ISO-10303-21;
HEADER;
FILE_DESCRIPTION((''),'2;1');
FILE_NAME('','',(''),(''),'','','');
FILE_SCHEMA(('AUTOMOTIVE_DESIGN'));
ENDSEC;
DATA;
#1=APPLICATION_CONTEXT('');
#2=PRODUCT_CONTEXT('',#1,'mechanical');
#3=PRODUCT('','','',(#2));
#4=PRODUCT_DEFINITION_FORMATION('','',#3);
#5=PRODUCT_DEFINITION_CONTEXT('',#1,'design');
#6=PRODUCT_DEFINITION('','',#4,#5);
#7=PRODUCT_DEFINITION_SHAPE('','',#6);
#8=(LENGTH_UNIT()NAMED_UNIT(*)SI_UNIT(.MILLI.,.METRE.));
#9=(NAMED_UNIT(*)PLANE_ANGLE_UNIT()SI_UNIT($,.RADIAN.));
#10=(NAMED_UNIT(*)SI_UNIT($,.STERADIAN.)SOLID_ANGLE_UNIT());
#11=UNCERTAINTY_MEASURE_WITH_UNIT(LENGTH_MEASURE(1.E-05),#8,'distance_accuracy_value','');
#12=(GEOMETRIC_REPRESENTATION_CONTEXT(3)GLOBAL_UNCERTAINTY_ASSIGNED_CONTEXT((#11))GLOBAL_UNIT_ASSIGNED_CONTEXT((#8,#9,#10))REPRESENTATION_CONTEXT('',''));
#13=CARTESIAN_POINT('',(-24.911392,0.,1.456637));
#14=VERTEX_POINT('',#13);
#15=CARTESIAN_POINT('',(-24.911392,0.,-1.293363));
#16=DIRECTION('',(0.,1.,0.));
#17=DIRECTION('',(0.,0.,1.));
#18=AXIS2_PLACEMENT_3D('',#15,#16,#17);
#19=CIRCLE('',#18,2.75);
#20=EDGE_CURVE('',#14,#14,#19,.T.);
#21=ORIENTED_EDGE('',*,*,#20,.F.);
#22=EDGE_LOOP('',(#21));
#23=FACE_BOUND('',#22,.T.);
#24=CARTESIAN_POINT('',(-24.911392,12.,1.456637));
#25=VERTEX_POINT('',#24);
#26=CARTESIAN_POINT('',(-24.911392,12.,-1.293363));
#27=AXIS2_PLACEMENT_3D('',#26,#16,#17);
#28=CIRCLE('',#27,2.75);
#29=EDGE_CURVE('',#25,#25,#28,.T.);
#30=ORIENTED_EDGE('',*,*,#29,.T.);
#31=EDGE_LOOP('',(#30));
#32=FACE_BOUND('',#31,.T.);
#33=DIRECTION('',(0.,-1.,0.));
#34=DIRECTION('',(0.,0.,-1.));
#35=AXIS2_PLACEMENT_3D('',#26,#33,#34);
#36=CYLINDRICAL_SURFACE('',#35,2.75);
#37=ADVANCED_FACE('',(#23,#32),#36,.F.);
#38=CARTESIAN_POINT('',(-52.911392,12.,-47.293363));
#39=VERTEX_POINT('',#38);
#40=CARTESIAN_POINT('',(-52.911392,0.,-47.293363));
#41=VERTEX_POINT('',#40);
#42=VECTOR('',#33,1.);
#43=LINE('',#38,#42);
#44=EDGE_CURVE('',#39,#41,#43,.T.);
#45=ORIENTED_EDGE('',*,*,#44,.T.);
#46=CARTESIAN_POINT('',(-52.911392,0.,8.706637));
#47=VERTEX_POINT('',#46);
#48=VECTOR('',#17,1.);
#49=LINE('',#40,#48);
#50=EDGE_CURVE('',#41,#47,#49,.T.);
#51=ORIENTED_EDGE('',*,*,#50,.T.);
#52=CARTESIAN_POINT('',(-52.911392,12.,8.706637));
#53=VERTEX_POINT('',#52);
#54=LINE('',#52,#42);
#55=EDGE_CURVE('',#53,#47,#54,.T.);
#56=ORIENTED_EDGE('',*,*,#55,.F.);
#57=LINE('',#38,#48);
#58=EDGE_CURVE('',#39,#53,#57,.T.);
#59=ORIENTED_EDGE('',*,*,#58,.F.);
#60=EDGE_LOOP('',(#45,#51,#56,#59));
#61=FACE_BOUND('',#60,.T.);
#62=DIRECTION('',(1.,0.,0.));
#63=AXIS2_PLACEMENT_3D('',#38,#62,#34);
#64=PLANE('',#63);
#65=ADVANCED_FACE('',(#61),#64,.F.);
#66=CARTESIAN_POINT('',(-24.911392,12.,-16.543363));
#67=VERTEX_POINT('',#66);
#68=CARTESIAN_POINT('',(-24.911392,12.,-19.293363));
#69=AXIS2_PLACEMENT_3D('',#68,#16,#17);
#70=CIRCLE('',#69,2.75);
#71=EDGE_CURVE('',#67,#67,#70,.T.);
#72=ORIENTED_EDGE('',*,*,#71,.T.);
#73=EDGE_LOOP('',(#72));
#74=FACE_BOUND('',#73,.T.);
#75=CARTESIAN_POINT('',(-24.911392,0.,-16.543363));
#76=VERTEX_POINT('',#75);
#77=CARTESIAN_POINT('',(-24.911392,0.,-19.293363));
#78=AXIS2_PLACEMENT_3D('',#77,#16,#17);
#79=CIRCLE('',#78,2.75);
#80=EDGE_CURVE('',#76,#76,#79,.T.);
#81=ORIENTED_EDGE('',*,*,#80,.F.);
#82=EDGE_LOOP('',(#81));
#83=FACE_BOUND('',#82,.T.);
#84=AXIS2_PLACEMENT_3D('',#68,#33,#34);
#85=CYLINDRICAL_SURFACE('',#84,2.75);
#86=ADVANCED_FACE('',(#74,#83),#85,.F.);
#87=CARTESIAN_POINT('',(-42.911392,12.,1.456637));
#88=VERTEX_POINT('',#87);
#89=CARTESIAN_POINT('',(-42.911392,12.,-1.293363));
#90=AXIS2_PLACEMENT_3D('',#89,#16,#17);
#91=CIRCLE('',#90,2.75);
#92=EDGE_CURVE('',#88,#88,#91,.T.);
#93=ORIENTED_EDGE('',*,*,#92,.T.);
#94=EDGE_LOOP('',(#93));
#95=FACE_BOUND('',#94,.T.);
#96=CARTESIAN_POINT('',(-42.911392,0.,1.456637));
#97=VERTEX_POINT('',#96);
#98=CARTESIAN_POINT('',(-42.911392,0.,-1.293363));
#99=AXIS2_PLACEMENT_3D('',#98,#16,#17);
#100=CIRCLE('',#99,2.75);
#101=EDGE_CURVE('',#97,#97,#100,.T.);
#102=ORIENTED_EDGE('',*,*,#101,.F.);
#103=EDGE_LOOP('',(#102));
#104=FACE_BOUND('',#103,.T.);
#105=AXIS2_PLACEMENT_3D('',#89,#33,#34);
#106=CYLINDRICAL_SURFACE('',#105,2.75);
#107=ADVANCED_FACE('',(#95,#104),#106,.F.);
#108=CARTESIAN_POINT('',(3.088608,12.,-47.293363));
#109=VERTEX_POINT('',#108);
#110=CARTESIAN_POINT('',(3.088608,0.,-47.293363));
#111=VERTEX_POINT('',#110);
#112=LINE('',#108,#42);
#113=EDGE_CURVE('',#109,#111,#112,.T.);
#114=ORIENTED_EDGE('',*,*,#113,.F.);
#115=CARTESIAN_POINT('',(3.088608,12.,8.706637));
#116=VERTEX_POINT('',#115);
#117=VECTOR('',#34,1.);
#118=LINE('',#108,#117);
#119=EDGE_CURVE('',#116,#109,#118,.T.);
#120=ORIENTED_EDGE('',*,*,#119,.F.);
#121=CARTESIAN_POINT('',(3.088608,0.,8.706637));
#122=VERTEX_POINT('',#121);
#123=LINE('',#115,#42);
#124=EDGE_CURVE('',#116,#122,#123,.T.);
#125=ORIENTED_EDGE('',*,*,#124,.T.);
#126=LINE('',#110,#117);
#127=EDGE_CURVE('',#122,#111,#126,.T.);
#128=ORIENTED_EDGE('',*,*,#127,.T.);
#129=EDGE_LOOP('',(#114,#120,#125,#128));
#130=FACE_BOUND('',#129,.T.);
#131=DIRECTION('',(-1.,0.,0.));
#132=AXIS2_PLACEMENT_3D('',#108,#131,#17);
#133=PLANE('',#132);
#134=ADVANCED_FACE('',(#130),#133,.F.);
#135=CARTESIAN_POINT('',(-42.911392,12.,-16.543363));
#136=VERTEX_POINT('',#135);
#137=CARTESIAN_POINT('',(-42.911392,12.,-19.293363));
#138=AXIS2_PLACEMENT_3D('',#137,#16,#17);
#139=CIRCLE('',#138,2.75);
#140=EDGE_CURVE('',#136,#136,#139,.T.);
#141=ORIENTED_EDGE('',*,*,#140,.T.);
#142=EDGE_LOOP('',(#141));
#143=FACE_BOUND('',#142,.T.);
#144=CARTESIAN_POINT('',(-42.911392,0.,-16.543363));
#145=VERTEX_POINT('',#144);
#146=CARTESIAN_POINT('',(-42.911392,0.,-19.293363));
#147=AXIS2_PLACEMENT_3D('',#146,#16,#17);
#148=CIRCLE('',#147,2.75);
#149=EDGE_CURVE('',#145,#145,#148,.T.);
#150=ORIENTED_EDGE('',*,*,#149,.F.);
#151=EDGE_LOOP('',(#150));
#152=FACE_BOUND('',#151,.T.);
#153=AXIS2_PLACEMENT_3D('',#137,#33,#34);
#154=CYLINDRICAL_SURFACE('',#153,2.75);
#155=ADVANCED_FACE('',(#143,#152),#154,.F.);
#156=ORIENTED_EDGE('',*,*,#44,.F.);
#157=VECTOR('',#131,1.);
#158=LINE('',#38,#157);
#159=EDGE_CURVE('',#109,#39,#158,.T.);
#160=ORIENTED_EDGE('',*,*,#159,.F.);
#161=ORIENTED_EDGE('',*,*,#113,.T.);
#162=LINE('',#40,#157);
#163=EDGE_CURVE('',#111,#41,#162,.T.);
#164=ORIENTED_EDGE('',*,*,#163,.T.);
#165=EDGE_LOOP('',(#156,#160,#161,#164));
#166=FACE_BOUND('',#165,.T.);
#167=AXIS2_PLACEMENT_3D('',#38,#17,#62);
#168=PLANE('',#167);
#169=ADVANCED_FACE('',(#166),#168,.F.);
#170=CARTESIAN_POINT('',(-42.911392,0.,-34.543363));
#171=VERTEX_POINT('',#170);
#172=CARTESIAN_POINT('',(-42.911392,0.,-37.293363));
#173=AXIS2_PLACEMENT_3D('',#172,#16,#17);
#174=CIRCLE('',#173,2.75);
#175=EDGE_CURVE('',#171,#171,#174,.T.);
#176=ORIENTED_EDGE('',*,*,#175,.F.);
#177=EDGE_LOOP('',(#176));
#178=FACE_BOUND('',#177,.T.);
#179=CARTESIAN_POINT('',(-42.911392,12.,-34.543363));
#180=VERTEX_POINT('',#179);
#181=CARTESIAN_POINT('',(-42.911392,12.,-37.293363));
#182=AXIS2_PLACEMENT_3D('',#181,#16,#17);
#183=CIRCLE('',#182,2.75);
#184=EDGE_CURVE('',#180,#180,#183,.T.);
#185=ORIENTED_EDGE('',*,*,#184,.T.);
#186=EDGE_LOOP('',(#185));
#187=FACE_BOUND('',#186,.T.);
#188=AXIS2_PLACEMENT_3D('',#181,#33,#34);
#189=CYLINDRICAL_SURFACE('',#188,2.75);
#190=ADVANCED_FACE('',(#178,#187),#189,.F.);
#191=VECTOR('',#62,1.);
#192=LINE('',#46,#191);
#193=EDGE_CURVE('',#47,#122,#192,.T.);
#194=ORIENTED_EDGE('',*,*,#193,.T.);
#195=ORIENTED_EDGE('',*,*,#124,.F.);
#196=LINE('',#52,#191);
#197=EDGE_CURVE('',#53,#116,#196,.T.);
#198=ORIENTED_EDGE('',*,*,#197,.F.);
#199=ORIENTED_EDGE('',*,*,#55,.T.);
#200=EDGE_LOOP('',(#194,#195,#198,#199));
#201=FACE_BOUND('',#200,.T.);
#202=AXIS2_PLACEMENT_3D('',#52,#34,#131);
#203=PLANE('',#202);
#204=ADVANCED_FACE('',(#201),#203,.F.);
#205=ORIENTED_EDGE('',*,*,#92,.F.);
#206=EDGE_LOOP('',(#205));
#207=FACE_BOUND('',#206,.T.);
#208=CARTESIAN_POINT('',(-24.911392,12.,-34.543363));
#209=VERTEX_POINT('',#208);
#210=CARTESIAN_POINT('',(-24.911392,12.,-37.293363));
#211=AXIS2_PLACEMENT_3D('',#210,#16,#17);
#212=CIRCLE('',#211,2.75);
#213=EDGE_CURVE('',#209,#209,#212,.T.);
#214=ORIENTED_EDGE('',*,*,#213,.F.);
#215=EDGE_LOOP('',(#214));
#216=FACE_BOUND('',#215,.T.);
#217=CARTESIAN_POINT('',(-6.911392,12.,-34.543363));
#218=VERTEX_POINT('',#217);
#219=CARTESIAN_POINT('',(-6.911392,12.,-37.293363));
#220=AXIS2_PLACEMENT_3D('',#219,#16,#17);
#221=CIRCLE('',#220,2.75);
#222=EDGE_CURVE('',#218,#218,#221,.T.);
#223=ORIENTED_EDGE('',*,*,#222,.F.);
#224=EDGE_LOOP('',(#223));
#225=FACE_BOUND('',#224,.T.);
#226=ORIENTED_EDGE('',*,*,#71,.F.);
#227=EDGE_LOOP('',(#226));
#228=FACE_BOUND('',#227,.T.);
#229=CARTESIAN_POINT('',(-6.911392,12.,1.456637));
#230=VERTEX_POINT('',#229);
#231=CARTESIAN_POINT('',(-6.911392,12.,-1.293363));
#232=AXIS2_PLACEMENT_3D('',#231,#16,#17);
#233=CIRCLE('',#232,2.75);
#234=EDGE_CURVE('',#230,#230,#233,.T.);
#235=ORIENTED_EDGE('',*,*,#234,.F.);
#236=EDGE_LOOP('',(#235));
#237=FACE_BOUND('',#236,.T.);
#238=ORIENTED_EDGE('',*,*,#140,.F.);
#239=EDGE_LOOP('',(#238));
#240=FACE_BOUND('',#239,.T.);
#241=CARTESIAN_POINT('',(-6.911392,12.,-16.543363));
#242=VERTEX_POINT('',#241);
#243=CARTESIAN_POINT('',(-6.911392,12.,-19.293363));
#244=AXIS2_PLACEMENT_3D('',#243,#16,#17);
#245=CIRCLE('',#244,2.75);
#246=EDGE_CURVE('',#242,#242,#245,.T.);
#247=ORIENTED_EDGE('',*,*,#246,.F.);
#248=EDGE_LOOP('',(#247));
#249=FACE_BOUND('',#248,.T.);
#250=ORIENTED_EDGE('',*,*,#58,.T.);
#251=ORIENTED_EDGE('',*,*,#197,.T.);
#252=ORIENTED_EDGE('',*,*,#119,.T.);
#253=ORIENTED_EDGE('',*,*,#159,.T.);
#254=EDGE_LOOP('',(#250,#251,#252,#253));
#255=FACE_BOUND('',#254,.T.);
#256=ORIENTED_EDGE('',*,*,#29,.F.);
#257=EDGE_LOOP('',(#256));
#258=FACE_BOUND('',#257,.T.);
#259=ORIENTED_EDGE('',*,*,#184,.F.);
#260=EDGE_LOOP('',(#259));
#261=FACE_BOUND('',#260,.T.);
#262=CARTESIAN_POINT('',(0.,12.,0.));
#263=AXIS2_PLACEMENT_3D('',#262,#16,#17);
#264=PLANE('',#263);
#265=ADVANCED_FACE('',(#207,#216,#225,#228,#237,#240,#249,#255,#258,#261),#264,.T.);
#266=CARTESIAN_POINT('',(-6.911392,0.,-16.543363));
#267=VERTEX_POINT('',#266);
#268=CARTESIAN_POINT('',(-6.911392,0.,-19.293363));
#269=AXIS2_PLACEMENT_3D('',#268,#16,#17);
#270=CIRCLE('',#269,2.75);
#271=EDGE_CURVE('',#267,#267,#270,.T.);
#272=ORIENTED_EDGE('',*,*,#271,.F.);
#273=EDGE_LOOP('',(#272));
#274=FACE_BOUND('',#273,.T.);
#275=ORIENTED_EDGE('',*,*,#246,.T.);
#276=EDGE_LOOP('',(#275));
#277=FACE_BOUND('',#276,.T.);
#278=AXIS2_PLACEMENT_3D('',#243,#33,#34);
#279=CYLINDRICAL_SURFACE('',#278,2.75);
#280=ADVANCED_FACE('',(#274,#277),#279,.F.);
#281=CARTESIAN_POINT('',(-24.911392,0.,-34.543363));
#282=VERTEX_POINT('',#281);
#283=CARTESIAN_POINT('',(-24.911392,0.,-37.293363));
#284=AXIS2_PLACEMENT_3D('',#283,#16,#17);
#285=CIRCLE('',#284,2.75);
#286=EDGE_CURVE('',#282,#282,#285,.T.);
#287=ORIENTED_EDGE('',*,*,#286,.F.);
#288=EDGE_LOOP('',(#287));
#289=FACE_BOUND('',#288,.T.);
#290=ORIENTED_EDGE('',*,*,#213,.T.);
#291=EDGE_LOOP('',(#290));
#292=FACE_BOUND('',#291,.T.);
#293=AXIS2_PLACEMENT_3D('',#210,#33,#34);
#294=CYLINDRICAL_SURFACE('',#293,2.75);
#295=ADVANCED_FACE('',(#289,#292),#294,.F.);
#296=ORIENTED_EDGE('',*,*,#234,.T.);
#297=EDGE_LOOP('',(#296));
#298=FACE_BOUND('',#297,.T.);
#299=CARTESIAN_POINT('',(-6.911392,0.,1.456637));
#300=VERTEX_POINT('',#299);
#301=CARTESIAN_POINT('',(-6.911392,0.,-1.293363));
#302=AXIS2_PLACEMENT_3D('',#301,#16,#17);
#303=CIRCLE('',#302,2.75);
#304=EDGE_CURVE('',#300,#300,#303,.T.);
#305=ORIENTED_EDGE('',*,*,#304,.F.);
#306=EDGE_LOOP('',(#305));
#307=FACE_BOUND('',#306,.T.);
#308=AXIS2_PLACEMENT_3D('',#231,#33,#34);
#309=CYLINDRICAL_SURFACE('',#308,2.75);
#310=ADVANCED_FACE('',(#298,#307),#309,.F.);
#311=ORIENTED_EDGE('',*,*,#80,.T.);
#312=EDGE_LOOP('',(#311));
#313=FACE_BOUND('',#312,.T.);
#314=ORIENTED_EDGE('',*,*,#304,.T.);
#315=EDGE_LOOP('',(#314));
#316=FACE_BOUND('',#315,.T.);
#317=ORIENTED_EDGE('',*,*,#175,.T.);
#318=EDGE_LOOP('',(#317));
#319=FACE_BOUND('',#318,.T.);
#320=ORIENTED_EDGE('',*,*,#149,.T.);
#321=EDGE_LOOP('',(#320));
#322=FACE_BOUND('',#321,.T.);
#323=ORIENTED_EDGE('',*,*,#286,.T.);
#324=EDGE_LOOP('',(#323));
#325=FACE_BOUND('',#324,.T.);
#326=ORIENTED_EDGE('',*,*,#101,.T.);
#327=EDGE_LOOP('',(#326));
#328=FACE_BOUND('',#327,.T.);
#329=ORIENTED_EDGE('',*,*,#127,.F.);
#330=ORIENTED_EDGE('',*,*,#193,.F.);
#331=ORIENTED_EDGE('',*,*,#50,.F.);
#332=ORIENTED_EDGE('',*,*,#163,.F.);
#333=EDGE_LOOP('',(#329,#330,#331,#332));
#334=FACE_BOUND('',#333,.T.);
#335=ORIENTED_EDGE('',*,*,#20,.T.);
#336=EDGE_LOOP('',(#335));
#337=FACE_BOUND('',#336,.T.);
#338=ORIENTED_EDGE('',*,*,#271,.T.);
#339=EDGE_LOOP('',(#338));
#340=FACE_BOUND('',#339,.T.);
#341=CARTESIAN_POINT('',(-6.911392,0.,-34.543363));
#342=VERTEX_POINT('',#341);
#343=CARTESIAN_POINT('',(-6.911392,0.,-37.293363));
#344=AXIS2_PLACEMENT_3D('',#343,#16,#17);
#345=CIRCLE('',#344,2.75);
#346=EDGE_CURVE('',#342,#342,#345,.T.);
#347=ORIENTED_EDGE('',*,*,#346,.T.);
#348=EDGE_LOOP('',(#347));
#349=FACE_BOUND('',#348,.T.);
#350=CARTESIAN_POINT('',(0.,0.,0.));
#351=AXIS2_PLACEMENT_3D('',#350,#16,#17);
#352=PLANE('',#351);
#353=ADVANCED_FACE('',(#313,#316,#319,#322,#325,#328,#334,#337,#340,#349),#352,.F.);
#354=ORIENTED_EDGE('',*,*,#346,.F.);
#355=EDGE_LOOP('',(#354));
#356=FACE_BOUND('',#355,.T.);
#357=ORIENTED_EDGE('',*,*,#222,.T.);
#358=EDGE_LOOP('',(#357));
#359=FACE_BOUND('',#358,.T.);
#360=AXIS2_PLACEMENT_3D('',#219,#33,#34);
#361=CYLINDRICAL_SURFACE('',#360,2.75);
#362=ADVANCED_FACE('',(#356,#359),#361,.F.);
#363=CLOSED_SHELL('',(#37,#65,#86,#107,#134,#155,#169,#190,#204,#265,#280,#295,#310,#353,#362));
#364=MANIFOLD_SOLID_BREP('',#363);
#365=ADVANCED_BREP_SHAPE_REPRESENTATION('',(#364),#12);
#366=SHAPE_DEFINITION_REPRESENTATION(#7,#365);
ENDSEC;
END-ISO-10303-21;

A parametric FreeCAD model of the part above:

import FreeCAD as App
import Part
import Sketcher


def add_polygon(sketch, points):
    """Adds a closed chain of lines whose ends are joined by coincident constraints."""
    first, n = sketch.GeometryCount, len(points)
    for a, b in zip(points, points[1:] + points[:1]):
        sketch.addGeometry(Part.LineSegment(App.Vector(*a, 0), App.Vector(*b, 0)), False)
    for i in range(n):
        sketch.addConstraint(Sketcher.Constraint("Coincident", first + i, 2, first + (i + 1) % n, 1))

doc = App.newDocument("Part")
body = doc.addObject("PartDesign::Body", "Body")

# Sketch on XZ plane
sketch1 = doc.addObject("Sketcher::SketchObject", "Sketch")
body.addObject(sketch1)
sketch1.AttachmentSupport = (doc.XZ_Plane, [""])
sketch1.MapMode = "FlatFace"
add_polygon(sketch1, [(-52.9, -47.3), (-52.9, 8.7), (3.1, 8.7), (3.1, -47.3)])  # lines 0-3
sketch1.addGeometry(Part.Circle(App.Vector(-42.9, -1.3, 0), App.Vector(0, 0, 1), 2.8), False)  # 4
sketch1.addGeometry(Part.Circle(App.Vector(-24.9, -1.3, 0), App.Vector(0, 0, 1), 2.8), False)  # 5
sketch1.addGeometry(Part.Circle(App.Vector(-6.9, -1.3, 0), App.Vector(0, 0, 1), 2.8), False)  # 6
sketch1.addGeometry(Part.Circle(App.Vector(-42.9, -19.3, 0), App.Vector(0, 0, 1), 2.8), False)  # 7
sketch1.addGeometry(Part.Circle(App.Vector(-42.9, -37.3, 0), App.Vector(0, 0, 1), 2.8), False)  # 8
sketch1.addGeometry(Part.Circle(App.Vector(-24.9, -19.3, 0), App.Vector(0, 0, 1), 2.8), False)  # 9
sketch1.addGeometry(Part.Circle(App.Vector(-6.9, -19.3, 0), App.Vector(0, 0, 1), 2.8), False)  # 10
sketch1.addGeometry(Part.Circle(App.Vector(-24.9, -37.3, 0), App.Vector(0, 0, 1), 2.8), False)  # 11
sketch1.addGeometry(Part.Circle(App.Vector(-6.9, -37.3, 0), App.Vector(0, 0, 1), 2.8), False)  # 12
sketch1.addConstraint([
    Sketcher.Constraint("Vertical", 0),
    Sketcher.Constraint("Horizontal", 1),
    Sketcher.Constraint("Vertical", 2),
    Sketcher.Constraint("Horizontal", 3),
    Sketcher.Constraint("Equal", 4, 5),
    Sketcher.Constraint("Equal", 5, 6),
    Sketcher.Constraint("Equal", 6, 7),
    Sketcher.Constraint("Equal", 7, 8),
    Sketcher.Constraint("Equal", 8, 9),
    Sketcher.Constraint("Equal", 9, 10),
    Sketcher.Constraint("Equal", 10, 11),
    Sketcher.Constraint("Equal", 11, 12),
    Sketcher.Constraint("Horizontal", 4, 3, 5, 3),
    Sketcher.Constraint("Horizontal", 5, 3, 6, 3),
    Sketcher.Constraint("Horizontal", 7, 3, 9, 3),
    Sketcher.Constraint("Horizontal", 9, 3, 10, 3),
    Sketcher.Constraint("Horizontal", 8, 3, 11, 3),
    Sketcher.Constraint("Horizontal", 11, 3, 12, 3),
    Sketcher.Constraint("Vertical", 4, 3, 7, 3),
    Sketcher.Constraint("Vertical", 7, 3, 8, 3),
    Sketcher.Constraint("Vertical", 5, 3, 9, 3),
    Sketcher.Constraint("Vertical", 6, 3, 10, 3),
    Sketcher.Constraint("Vertical", 9, 3, 11, 3),
    Sketcher.Constraint("Vertical", 10, 3, 12, 3),
    Sketcher.Constraint("Equal", 3, 0),
    Sketcher.Constraint("Diameter", 4, 5.5),
    Sketcher.Constraint("DistanceX", 1, 1, 1, 2, 56.0),
    Sketcher.Constraint("DistanceX", 4, 3, 5, 3, 18.0),
    Sketcher.Constraint("DistanceX", 5, 3, 6, 3, 18.0),
    Sketcher.Constraint("DistanceY", 7, 3, 4, 3, 18.0),
    Sketcher.Constraint("DistanceY", 8, 3, 7, 3, 18.0),
    Sketcher.Constraint("DistanceX", 0, 2, 4, 3, 10.0),
    Sketcher.Constraint("DistanceY", 4, 3, 0, 2, 10.0),
    Sketcher.Constraint("DistanceX", 4, 3, -1, 1, 42.911392),
    Sketcher.Constraint("DistanceY", 4, 3, -1, 1, 1.293363),
])
pad1 = doc.addObject("PartDesign::Pad", "Pad")
body.addObject(pad1)
pad1.Profile = sketch1
pad1.Length = 12
pad1.Reversed = True

doc.recompute()
